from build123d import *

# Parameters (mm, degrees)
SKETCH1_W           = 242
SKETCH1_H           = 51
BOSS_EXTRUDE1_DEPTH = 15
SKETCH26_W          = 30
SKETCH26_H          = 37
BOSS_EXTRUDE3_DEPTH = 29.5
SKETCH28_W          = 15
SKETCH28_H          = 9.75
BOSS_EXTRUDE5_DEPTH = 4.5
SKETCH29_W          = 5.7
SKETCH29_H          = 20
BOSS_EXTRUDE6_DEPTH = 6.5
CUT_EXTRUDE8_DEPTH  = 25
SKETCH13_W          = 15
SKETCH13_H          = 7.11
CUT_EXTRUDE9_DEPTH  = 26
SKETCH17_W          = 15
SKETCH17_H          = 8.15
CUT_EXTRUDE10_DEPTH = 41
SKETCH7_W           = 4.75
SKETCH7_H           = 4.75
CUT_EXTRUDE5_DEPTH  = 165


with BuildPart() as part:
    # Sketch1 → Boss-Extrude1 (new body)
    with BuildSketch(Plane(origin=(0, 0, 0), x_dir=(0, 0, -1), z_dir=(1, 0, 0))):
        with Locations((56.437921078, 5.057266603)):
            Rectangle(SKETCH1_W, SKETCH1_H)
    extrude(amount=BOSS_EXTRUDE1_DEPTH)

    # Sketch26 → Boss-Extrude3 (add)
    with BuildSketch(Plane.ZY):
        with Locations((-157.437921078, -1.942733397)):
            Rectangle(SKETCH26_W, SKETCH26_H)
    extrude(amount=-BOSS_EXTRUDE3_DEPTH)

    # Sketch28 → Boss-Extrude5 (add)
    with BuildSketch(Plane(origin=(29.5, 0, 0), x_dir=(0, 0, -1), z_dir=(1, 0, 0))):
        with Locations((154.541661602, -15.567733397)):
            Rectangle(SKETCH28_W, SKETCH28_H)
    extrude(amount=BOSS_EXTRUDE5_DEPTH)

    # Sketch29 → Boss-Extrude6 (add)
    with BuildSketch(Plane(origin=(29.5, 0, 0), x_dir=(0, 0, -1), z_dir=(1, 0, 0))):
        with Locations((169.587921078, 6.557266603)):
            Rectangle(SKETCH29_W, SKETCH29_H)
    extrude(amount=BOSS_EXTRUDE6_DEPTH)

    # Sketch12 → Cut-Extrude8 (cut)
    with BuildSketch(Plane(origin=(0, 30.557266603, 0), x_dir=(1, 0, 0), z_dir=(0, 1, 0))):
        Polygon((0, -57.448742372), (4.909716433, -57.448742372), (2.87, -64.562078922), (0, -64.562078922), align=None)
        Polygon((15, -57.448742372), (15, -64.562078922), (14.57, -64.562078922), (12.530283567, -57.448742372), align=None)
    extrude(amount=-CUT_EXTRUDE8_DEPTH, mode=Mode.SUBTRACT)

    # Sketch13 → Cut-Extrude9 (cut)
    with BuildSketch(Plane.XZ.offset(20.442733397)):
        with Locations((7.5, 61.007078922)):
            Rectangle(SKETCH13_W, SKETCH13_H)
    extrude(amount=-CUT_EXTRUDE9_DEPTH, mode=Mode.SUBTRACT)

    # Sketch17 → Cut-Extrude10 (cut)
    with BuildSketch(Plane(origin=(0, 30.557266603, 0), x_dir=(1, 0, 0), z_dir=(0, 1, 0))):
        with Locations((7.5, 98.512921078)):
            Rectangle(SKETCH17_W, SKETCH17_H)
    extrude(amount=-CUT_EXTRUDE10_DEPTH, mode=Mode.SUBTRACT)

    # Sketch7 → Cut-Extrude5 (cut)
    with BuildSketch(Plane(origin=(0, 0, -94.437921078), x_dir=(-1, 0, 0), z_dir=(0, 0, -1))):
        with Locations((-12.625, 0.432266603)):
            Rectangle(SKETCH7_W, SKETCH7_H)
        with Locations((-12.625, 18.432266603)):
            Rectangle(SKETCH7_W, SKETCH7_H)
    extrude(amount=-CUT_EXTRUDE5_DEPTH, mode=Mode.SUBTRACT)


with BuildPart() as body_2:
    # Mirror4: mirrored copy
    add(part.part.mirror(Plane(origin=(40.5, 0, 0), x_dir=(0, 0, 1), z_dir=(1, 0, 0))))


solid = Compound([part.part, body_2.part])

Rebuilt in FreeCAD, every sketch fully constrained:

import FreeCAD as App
import Part
import Sketcher
from FreeCAD import Vector
Q = App.Units.Quantity

doc = App.newDocument("Part")
params = doc.addObject("Spreadsheet::Sheet", "Params")
for row, (alias, value) in enumerate([
    ("sketch1_width", "51 mm"),
    ("sketch1_height", "242 mm"),
    ("pad1_length", "15 mm"),
    ("sketch2_width", "37 mm"),
    ("sketch2_height", "30 mm"),
    ("pad2_length", "29.5 mm"),
    ("sketch3_height", "15 mm"),
    ("sketch3_width", "9.75 mm"),
    ("pad3_length", "4.5 mm"),
    ("sketch4_width", "20 mm"),
    ("sketch4_height", "5.7 mm"),
    ("pad4_length", "6.5 mm"),
    ("sketch5_length", "7.4 mm"),
    ("sketch5_width", "2.87 mm"),
    ("sketch5_width2", "0.43 mm"),
    ("pocket1_length", "25 mm"),
    ("sketch6_width", "15 mm"),
    ("sketch6_height", "7.11 mm"),
    ("pocket2_length", "26 mm"),
    ("sketch7_width", "15 mm"),
    ("sketch7_height", "8.15 mm"),
    ("pocket3_length", "41 mm"),
    ("sketch8_width", "4.75 mm"),
    ("pocket4_length", "165 mm"),
], start=1):
    params.set(f"A{row}", alias)
    params.set(f"B{row}", "=" + value)
    params.setAlias(f"B{row}", alias)

body = doc.addObject("PartDesign::Body", "Body")

# Sketch on YZ plane
sketch1 = body.newObject("Sketcher::SketchObject", "Sketch")
sketch1.AttachmentSupport = (doc.getObject("YZ_Plane"), [""])
sketch1.MapMode = "FlatFace"
sketch1.addGeometry(Part.LineSegment(Vector(31, 65, 0), Vector(-20, 65, 0)), False)
sketch1.addGeometry(Part.LineSegment(Vector(-20, 65, 0), Vector(-20, -177, 0)), False)
sketch1.addGeometry(Part.LineSegment(Vector(-20, -177, 0), Vector(31, -177, 0)), False)
sketch1.addGeometry(Part.LineSegment(Vector(31, -177, 0), Vector(31, 65, 0)), False)
sketch1.addConstraint(Sketcher.Constraint("Coincident", 0, 2, 1, 1))
sketch1.addConstraint(Sketcher.Constraint("Coincident", 1, 2, 2, 1))
sketch1.addConstraint(Sketcher.Constraint("Coincident", 2, 2, 3, 1))
sketch1.addConstraint(Sketcher.Constraint("Coincident", 3, 2, 0, 1))
sketch1.addConstraint(Sketcher.Constraint("Horizontal", 0))
sketch1.addConstraint(Sketcher.Constraint("Vertical", 1))
sketch1.addConstraint(Sketcher.Constraint("Horizontal", 2))
sketch1.addConstraint(Sketcher.Constraint("Vertical", 3))
sketch1.addConstraint(Sketcher.Constraint("DistanceX", 0, 2, 0, 1, 51.0))
sketch1.addConstraint(Sketcher.Constraint("DistanceY", 1, 2, 1, 1, 242.0))
sketch1.addConstraint(Sketcher.Constraint("DistanceY", -1, 1, 0, 2, 64.562079))
sketch1.addConstraint(Sketcher.Constraint("DistanceX", 0, 2, -1, 1, 20.442733))
sketch1.setExpression("Constraints[8]", "Params.sketch1_width")
sketch1.setExpression("Constraints[9]", "Params.sketch1_height")
pad1 = body.newObject("PartDesign::Pad", "Pad")
pad1.Profile = sketch1
pad1.setExpression("Length", "Params.pad1_length")

# Sketch on YZ plane
sketch2 = body.newObject("Sketcher::SketchObject", "Sketch001")
sketch2.AttachmentSupport = (doc.getObject("YZ_Plane"), [""])
sketch2.MapMode = "FlatFace"
sketch2.addGeometry(Part.LineSegment(Vector(17, -172, 0), Vector(-20, -172, 0)), False)
sketch2.addGeometry(Part.LineSegment(Vector(-20, -172, 0), Vector(-20, -142, 0)), False)
sketch2.addGeometry(Part.LineSegment(Vector(-20, -142, 0), Vector(17, -142, 0)), False)
sketch2.addGeometry(Part.LineSegment(Vector(17, -142, 0), Vector(17, -172, 0)), False)
sketch2.addConstraint(Sketcher.Constraint("Coincident", 0, 2, 1, 1))
sketch2.addConstraint(Sketcher.Constraint("Coincident", 1, 2, 2, 1))
sketch2.addConstraint(Sketcher.Constraint("Coincident", 2, 2, 3, 1))
sketch2.addConstraint(Sketcher.Constraint("Coincident", 3, 2, 0, 1))
sketch2.addConstraint(Sketcher.Constraint("Horizontal", 0))
sketch2.addConstraint(Sketcher.Constraint("Vertical", 1))
sketch2.addConstraint(Sketcher.Constraint("Horizontal", 2))
sketch2.addConstraint(Sketcher.Constraint("Vertical", 3))
sketch2.addConstraint(Sketcher.Constraint("DistanceX", 0, 2, 0, 1, 37.0))
sketch2.addConstraint(Sketcher.Constraint("DistanceY", 1, 1, 1, 2, 30.0))
sketch2.addConstraint(Sketcher.Constraint("DistanceY", 0, 2, -1, 1, 172.437921))
sketch2.addConstraint(Sketcher.Constraint("DistanceX", 0, 2, -1, 1, 20.442733))
sketch2.setExpression("Constraints[8]", "Params.sketch2_width")
sketch2.setExpression("Constraints[9]", "Params.sketch2_height")
pad2 = body.newObject("PartDesign::Pad", "Pad001")
pad2.Profile = sketch2
pad2.setExpression("Length", "Params.pad2_length")

# Sketch on YZ plane
sketch3 = body.newObject("Sketcher::SketchObject", "Sketch002")
sketch3.AttachmentSupport = (doc.getObject("YZ_Plane"), [""])
sketch3.MapMode = "FlatFace"
sketch3.AttachmentOffset = App.Placement(Vector(0, 0, 29.5), App.Rotation())
sketch3.addGeometry(Part.LineSegment(Vector(-11, -147, 0), Vector(-20, -147, 0)), False)
sketch3.addGeometry(Part.LineSegment(Vector(-20, -147, 0), Vector(-20, -162, 0)), False)
sketch3.addGeometry(Part.LineSegment(Vector(-20, -162, 0), Vector(-11, -162, 0)), False)
sketch3.addGeometry(Part.LineSegment(Vector(-11, -162, 0), Vector(-11, -147, 0)), False)
sketch3.addConstraint(Sketcher.Constraint("Coincident", 0, 2, 1, 1))
sketch3.addConstraint(Sketcher.Constraint("Coincident", 1, 2, 2, 1))
sketch3.addConstraint(Sketcher.Constraint("Coincident", 2, 2, 3, 1))
sketch3.addConstraint(Sketcher.Constraint("Coincident", 3, 2, 0, 1))
sketch3.addConstraint(Sketcher.Constraint("Horizontal", 0))
sketch3.addConstraint(Sketcher.Constraint("Vertical", 1))
sketch3.addConstraint(Sketcher.Constraint("Horizontal", 2))
sketch3.addConstraint(Sketcher.Constraint("Vertical", 3))
sketch3.addConstraint(Sketcher.Constraint("DistanceY", 1, 2, 1, 1, 15.0))
sketch3.addConstraint(Sketcher.Constraint("DistanceX", 0, 2, 0, 1, 9.75))
sketch3.addConstraint(Sketcher.Constraint("DistanceY", 0, 2, -1, 1, 147.041662))
sketch3.addConstraint(Sketcher.Constraint("DistanceX", 0, 2, -1, 1, 20.442733))
sketch3.setExpression("Constraints[8]", "Params.sketch3_height")
sketch3.setExpression("Constraints[9]", "Params.sketch3_width")
pad3 = body.newObject("PartDesign::Pad", "Pad002")
pad3.Profile = sketch3
pad3.setExpression("Length", "Params.pad3_length")

# Sketch on YZ plane
sketch4 = body.newObject("Sketcher::SketchObject", "Sketch003")
sketch4.AttachmentSupport = (doc.getObject("YZ_Plane"), [""])
sketch4.MapMode = "FlatFace"
sketch4.AttachmentOffset = App.Placement(Vector(0, 0, 29.5), App.Rotation())
sketch4.addGeometry(Part.LineSegment(Vector(17, -167, 0), Vector(-3, -167, 0)), False)
sketch4.addGeometry(Part.LineSegment(Vector(-3, -167, 0), Vector(-3, -172, 0)), False)
sketch4.addGeometry(Part.LineSegment(Vector(-3, -172, 0), Vector(17, -172, 0)), False)
sketch4.addGeometry(Part.LineSegment(Vector(17, -172, 0), Vector(17, -167, 0)), False)
sketch4.addConstraint(Sketcher.Constraint("Coincident", 0, 2, 1, 1))
sketch4.addConstraint(Sketcher.Constraint("Coincident", 1, 2, 2, 1))
sketch4.addConstraint(Sketcher.Constraint("Coincident", 2, 2, 3, 1))
sketch4.addConstraint(Sketcher.Constraint("Coincident", 3, 2, 0, 1))
sketch4.addConstraint(Sketcher.Constraint("Horizontal", 0))
sketch4.addConstraint(Sketcher.Constraint("Vertical", 1))
sketch4.addConstraint(Sketcher.Constraint("Horizontal", 2))
sketch4.addConstraint(Sketcher.Constraint("Vertical", 3))
sketch4.addConstraint(Sketcher.Constraint("DistanceX", 0, 2, 0, 1, 20.0))
sketch4.addConstraint(Sketcher.Constraint("DistanceY", 1, 2, 1, 1, 5.7))
sketch4.addConstraint(Sketcher.Constraint("DistanceY", 0, 2, -1, 1, 166.737921))
sketch4.addConstraint(Sketcher.Constraint("DistanceX", 0, 2, -1, 1, 3.442733))
sketch4.setExpression("Constraints[8]", "Params.sketch4_width")
sketch4.setExpression("Constraints[9]", "Params.sketch4_height")
pad4 = body.newObject("PartDesign::Pad", "Pad003")
pad4.Profile = sketch4
pad4.setExpression("Length", "Params.pad4_length")

# Sketch on XZ plane
sketch5 = body.newObject("Sketcher::SketchObject", "Sketch004")
sketch5.AttachmentSupport = (doc.getObject("XZ_Plane"), [""])
sketch5.MapMode = "FlatFace"
sketch5.AttachmentOffset = App.Placement(Vector(0, 0, -30.557267), App.Rotation())
sketch5.addGeometry(Part.LineSegment(Vector(4.91, 57.45, 0), Vector(0, 57.45, 0)), False)
sketch5.addGeometry(Part.LineSegment(Vector(0, 57.45, 0), Vector(0, 64.56, 0)), False)
sketch5.addGeometry(Part.LineSegment(Vector(0, 64.56, 0), Vector(2.87, 64.56, 0)), False)
sketch5.addGeometry(Part.LineSegment(Vector(2.87, 64.56, 0), Vector(4.91, 57.45, 0)), False)
sketch5.addGeometry(Part.LineSegment(Vector(15, 64.56, 0), Vector(15, 57.45, 0)), False)
sketch5.addGeometry(Part.LineSegment(Vector(15, 57.45, 0), Vector(12.53, 57.45, 0)), False)
sketch5.addGeometry(Part.LineSegment(Vector(12.53, 57.45, 0), Vector(14.57, 64.56, 0)), False)
sketch5.addGeometry(Part.LineSegment(Vector(14.57, 64.56, 0), Vector(15, 64.56, 0)), False)
sketch5.addConstraint(Sketcher.Constraint("Coincident", 0, 2, 1, 1))
sketch5.addConstraint(Sketcher.Constraint("Coincident", 1, 2, 2, 1))
sketch5.addConstraint(Sketcher.Constraint("Coincident", 2, 2, 3, 1))
sketch5.addConstraint(Sketcher.Constraint("Coincident", 3, 2, 0, 1))
sketch5.addConstraint(Sketcher.Constraint("Coincident", 4, 2, 5, 1))
sketch5.addConstraint(Sketcher.Constraint("Coincident", 5, 2, 6, 1))
sketch5.addConstraint(Sketcher.Constraint("Coincident", 6, 2, 7, 1))
sketch5.addConstraint(Sketcher.Constraint("Coincident", 7, 2, 4, 1))
sketch5.addConstraint(Sketcher.Constraint("Horizontal", 0))
sketch5.addConstraint(Sketcher.Constraint("Vertical", 1))
sketch5.addConstraint(Sketcher.Constraint("Horizontal", 2))
sketch5.addConstraint(Sketcher.Constraint("Vertical", 4))
sketch5.addConstraint(Sketcher.Constraint("Horizontal", 5))
sketch5.addConstraint(Sketcher.Constraint("Horizontal", 7))
sketch5.addConstraint(Sketcher.Constraint("PointOnObject", 0, 2, -2))
sketch5.addConstraint(Sketcher.Constraint("Horizontal", 3, 2, 4, 2))
sketch5.addConstraint(Sketcher.Constraint("Horizontal", 2, 2, 6, 2))
sketch5.addConstraint(Sketcher.Constraint("Equal", 3, 6))
sketch5.addConstraint(Sketcher.Constraint("Angle", 3, Q("-74 deg")))
sketch5.addConstraint(Sketcher.Constraint("DistanceX", -1, 1, 4, 2, 15.0))
sketch5.addConstraint(Sketcher.Constraint("Distance", 3, 7.4))
sketch5.addConstraint(Sketcher.Constraint("DistanceX", 2, 1, 2, 2, 2.87))
sketch5.addConstraint(Sketcher.Constraint("DistanceX", 7, 1, 7, 2, 0.43))
sketch5.addConstraint(Sketcher.Constraint("DistanceY", -1, 1, 1, 2, 64.562079))
sketch5.setExpression("Constraints[20]", "Params.sketch5_length")
sketch5.setExpression("Constraints[21]", "Params.sketch5_width")
sketch5.setExpression("Constraints[22]", "Params.sketch5_width2")
pocket1 = body.newObject("PartDesign::Pocket", "Pocket")
pocket1.Profile = sketch5
pocket1.setExpression("Length", "Params.pocket1_length")
pocket1.Reversed = True

# Sketch on XZ plane
sketch6 = body.newObject("Sketcher::SketchObject", "Sketch005")
sketch6.AttachmentSupport = (doc.getObject("XZ_Plane"), [""])
sketch6.MapMode = "FlatFace"
sketch6.AttachmentOffset = App.Placement(Vector(0, 0, 20.442733), App.Rotation())
sketch6.addGeometry(Part.LineSegment(Vector(0, 65, 0), Vector(0, 57, 0)), False)
sketch6.addGeometry(Part.LineSegment(Vector(0, 57, 0), Vector(15, 57, 0)), False)
sketch6.addGeometry(Part.LineSegment(Vector(15, 57, 0), Vector(15, 65, 0)), False)
sketch6.addGeometry(Part.LineSegment(Vector(15, 65, 0), Vector(0, 65, 0)), False)
sketch6.addConstraint(Sketcher.Constraint("Coincident", 0, 2, 1, 1))
sketch6.addConstraint(Sketcher.Constraint("Coincident", 1, 2, 2, 1))
sketch6.addConstraint(Sketcher.Constraint("Coincident", 2, 2, 3, 1))
sketch6.addConstraint(Sketcher.Constraint("Coincident", 3, 2, 0, 1))
sketch6.addConstraint(Sketcher.Constraint("Vertical", 0))
sketch6.addConstraint(Sketcher.Constraint("Horizontal", 1))
sketch6.addConstraint(Sketcher.Constraint("Vertical", 2))
sketch6.addConstraint(Sketcher.Constraint("Horizontal", 3))
sketch6.addConstraint(Sketcher.Constraint("PointOnObject", 0, 2, -2))
sketch6.addConstraint(Sketcher.Constraint("DistanceX", 1, 1, 1, 2, 15.0))
sketch6.addConstraint(Sketcher.Constraint("DistanceY", 0, 2, 0, 1, 7.11))
sketch6.addConstraint(Sketcher.Constraint("DistanceY", -1, 1, 0, 2, 57.452079))
sketch6.setExpression("Constraints[9]", "Params.sketch6_width")
sketch6.setExpression("Constraints[10]", "Params.sketch6_height")
pocket2 = body.newObject("PartDesign::Pocket", "Pocket001")
pocket2.Profile = sketch6
pocket2.setExpression("Length", "Params.pocket2_length")

# Sketch on XZ plane
sketch7 = body.newObject("Sketcher::SketchObject", "Sketch006")
sketch7.AttachmentSupport = (doc.getObject("XZ_Plane"), [""])
sketch7.MapMode = "FlatFace"
sketch7.AttachmentOffset = App.Placement(Vector(0, 0, -30.557267), App.Rotation())
sketch7.addGeometry(Part.LineSegment(Vector(0, -103, 0), Vector(0, -94, 0)), False)
sketch7.addGeometry(Part.LineSegment(Vector(0, -94, 0), Vector(15, -94, 0)), False)
sketch7.addGeometry(Part.LineSegment(Vector(15, -94, 0), Vector(15, -103, 0)), False)
sketch7.addGeometry(Part.LineSegment(Vector(15, -103, 0), Vector(0, -103, 0)), False)
sketch7.addConstraint(Sketcher.Constraint("Coincident", 0, 2, 1, 1))
sketch7.addConstraint(Sketcher.Constraint("Coincident", 1, 2, 2, 1))
sketch7.addConstraint(Sketcher.Constraint("Coincident", 2, 2, 3, 1))
sketch7.addConstraint(Sketcher.Constraint("Coincident", 3, 2, 0, 1))
sketch7.addConstraint(Sketcher.Constraint("Vertical", 0))
sketch7.addConstraint(Sketcher.Constraint("Horizontal", 1))
sketch7.addConstraint(Sketcher.Constraint("Vertical", 2))
sketch7.addConstraint(Sketcher.Constraint("Horizontal", 3))
sketch7.addConstraint(Sketcher.Constraint("PointOnObject", 0, 2, -2))
sketch7.addConstraint(Sketcher.Constraint("DistanceX", 1, 1, 1, 2, 15.0))
sketch7.addConstraint(Sketcher.Constraint("DistanceY", 0, 1, 0, 2, 8.15))
sketch7.addConstraint(Sketcher.Constraint("DistanceY", 0, 2, -1, 1, 94.437921))
sketch7.setExpression("Constraints[9]", "Params.sketch7_width")
sketch7.setExpression("Constraints[10]", "Params.sketch7_height")
pocket3 = body.newObject("PartDesign::Pocket", "Pocket002")
pocket3.Profile = sketch7
pocket3.setExpression("Length", "Params.pocket3_length")
pocket3.Reversed = True

# Sketch on XY plane
sketch8 = body.newObject("Sketcher::SketchObject", "Sketch007")
sketch8.AttachmentSupport = (doc.getObject("XY_Plane"), [""])
sketch8.MapMode = "FlatFace"
sketch8.AttachmentOffset = App.Placement(Vector(0, 0, -94.437921), App.Rotation())
sketch8.addGeometry(Part.LineSegment(Vector(15, 2.8, 0), Vector(15, -1.9, 0)), False)
sketch8.addGeometry(Part.LineSegment(Vector(15, -1.9, 0), Vector(10.2, -1.9, 0)), False)
sketch8.addGeometry(Part.LineSegment(Vector(10.2, -1.9, 0), Vector(10.2, 2.8, 0)), False)
sketch8.addGeometry(Part.LineSegment(Vector(10.2, 2.8, 0), Vector(15, 2.8, 0)), False)
sketch8.addGeometry(Part.LineSegment(Vector(15, 20.8, 0), Vector(15, 16.1, 0)), False)
sketch8.addGeometry(Part.LineSegment(Vector(15, 16.1, 0), Vector(10.2, 16.1, 0)), False)
sketch8.addGeometry(Part.LineSegment(Vector(10.2, 16.1, 0), Vector(10.2, 20.8, 0)), False)
sketch8.addGeometry(Part.LineSegment(Vector(10.2, 20.8, 0), Vector(15, 20.8, 0)), False)
sketch8.addConstraint(Sketcher.Constraint("Coincident", 0, 2, 1, 1))
sketch8.addConstraint(Sketcher.Constraint("Coincident", 1, 2, 2, 1))
sketch8.addConstraint(Sketcher.Constraint("Coincident", 2, 2, 3, 1))
sketch8.addConstraint(Sketcher.Constraint("Coincident", 3, 2, 0, 1))
sketch8.addConstraint(Sketcher.Constraint("Coincident", 4, 2, 5, 1))
sketch8.addConstraint(Sketcher.Constraint("Coincident", 5, 2, 6, 1))
sketch8.addConstraint(Sketcher.Constraint("Coincident", 6, 2, 7, 1))
sketch8.addConstraint(Sketcher.Constraint("Coincident", 7, 2, 4, 1))
sketch8.addConstraint(Sketcher.Constraint("Vertical", 0))
sketch8.addConstraint(Sketcher.Constraint("Horizontal", 1))
sketch8.addConstraint(Sketcher.Constraint("Vertical", 2))
sketch8.addConstraint(Sketcher.Constraint("Horizontal", 3))
sketch8.addConstraint(Sketcher.Constraint("Vertical", 4))
sketch8.addConstraint(Sketcher.Constraint("Horizontal", 5))
sketch8.addConstraint(Sketcher.Constraint("Vertical", 6))
sketch8.addConstraint(Sketcher.Constraint("Horizontal", 7))
sketch8.addConstraint(Sketcher.Constraint("Vertical", 3, 2, 4, 2))
sketch8.addConstraint(Sketcher.Constraint("Vertical", 2, 2, 5, 2))
sketch8.addConstraint(Sketcher.Constraint("Equal", 7, 0))
sketch8.addConstraint(Sketcher.Constraint("Equal", 2, 4))
sketch8.addConstraint(Sketcher.Constraint("DistanceX", -1, 1, 0, 2, 15.0))
sketch8.addConstraint(Sketcher.Constraint("DistanceY", 0, 2, 4, 2, 18.0))
sketch8.addConstraint(Sketcher.Constraint("DistanceX", 1, 2, 1, 1, 4.75))
sketch8.addConstraint(Sketcher.Constraint("DistanceY", 0, 2, -1, 1, 1.942733))
sketch8.setExpression("Constraints[22]", "Params.sketch8_width")
pocket4 = body.newObject("PartDesign::Pocket", "Pocket003")
pocket4.Profile = sketch8
pocket4.setExpression("Length", "Params.pocket4_length")
pocket4.Reversed = True
body2 = doc.addObject("PartDesign::Body", "Body001")
doc.recompute()

mirroring = doc.addObject("Part::Mirroring", "Mirroring")
mirroring.Source = body
mirroring.Base = Vector(40.5, 0, 0)
mirroring.Normal = Vector(1, 0, 0)
body2.BaseFeature = mirroring
doc.recompute()
mirroring.Visibility = False

doc.recompute()
